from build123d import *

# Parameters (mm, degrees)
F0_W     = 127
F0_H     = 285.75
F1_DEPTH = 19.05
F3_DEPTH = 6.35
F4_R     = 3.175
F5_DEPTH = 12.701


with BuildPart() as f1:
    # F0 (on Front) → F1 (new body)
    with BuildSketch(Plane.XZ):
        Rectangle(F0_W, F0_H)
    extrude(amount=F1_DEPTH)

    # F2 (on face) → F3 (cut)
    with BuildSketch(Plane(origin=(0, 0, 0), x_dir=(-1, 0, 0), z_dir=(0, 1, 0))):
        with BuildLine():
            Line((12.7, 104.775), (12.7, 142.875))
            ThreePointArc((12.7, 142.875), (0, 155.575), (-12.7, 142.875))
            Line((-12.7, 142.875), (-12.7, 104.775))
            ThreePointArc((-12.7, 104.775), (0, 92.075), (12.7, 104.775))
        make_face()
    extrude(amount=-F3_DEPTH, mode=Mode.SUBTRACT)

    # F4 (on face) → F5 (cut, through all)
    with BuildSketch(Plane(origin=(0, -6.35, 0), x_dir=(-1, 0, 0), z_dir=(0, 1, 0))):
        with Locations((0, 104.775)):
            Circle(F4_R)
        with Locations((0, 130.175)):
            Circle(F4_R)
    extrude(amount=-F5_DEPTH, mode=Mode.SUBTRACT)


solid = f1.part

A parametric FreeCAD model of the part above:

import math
import FreeCAD as App
import Part
import Sketcher

V = App.Vector
Q = App.Units.Quantity


def add_polygon(sketch, points):
    """Adds a closed chain of lines whose ends are joined by coincident constraints."""
    first, n = sketch.GeometryCount, len(points)
    for a, b in zip(points, points[1:] + points[:1]):
        sketch.addGeometry(Part.LineSegment(App.Vector(*a, 0), App.Vector(*b, 0)), False)
    for i in range(n):
        sketch.addConstraint(Sketcher.Constraint("Coincident", first + i, 2, first + (i + 1) % n, 1))

doc = App.newDocument("Part")
body = doc.addObject("PartDesign::Body", "Body")

# Sketch on XZ plane
sketch1 = body.newObject("Sketcher::SketchObject", "Sketch")
sketch1.AttachmentSupport = (doc.getObject("XZ_Plane"), [""])
sketch1.MapMode = "FlatFace"
add_polygon(sketch1, [(-64, 143), (-64, -143), (64, -143), (64, 143)])  # lines 0-3
sketch1.addConstraint([
    Sketcher.Constraint("Vertical", 0),
    Sketcher.Constraint("Horizontal", 1),
    Sketcher.Constraint("Vertical", 2),
    Sketcher.Constraint("Horizontal", 3),
    Sketcher.Constraint("Symmetric", 0, 2, 2, 2, -1, 1),
    Sketcher.Constraint("DistanceX", 1, 1, 1, 2, Q("5 in")),
    Sketcher.Constraint("DistanceY", 0, 2, 0, 1, Q("11.25 in")),
])
pad1 = body.newObject("PartDesign::Pad", "Pad")
pad1.Profile = sketch1
pad1.Length = Q("0.75 in")

# Sketch on XZ plane
sketch2 = body.newObject("Sketcher::SketchObject", "Sketch001")
sketch2.AttachmentSupport = (doc.getObject("XZ_Plane"), [""])
sketch2.MapMode = "FlatFace"
sketch2.addGeometry([
    Part.LineSegment(V(-13, 105, 0), V(-13, 143, 0)),
    Part.ArcOfCircle(Part.Circle(V(0, 143, 0), V(0, 0, 1), 13), math.radians(0), math.radians(180)),
    Part.LineSegment(V(13, 143, 0), V(13, 105, 0)),
    Part.ArcOfCircle(Part.Circle(V(0, 105, 0), V(0, 0, 1), 13), math.radians(180), math.radians(360)),
], False)
sketch2.addConstraint([
    Sketcher.Constraint("Tangent", 0, 2, 1, 2),
    Sketcher.Constraint("Tangent", 1, 1, 2, 1),
    Sketcher.Constraint("Tangent", 2, 2, 3, 2),
    Sketcher.Constraint("Tangent", 3, 1, 0, 1),
    Sketcher.Constraint("Vertical", 0),
    Sketcher.Constraint("Vertical", 2),
    Sketcher.Constraint("PointOnObject", 1, 3, -2),
    Sketcher.Constraint("Radius", 1, Q("0.5 in")),
    Sketcher.Constraint("DistanceY", 0, 1, 0, 2, Q("1.5 in")),
    Sketcher.Constraint("DistanceY", -1, 1, 1, 3, Q("5.625 in")),
])
pocket1 = body.newObject("PartDesign::Pocket", "Pocket")
pocket1.Profile = sketch2
pocket1.Length = Q("0.25 in")
pocket1.Reversed = True

# Sketch on XZ plane
sketch3 = body.newObject("Sketcher::SketchObject", "Sketch002")
sketch3.AttachmentSupport = (doc.getObject("XZ_Plane"), [""])
sketch3.MapMode = "FlatFace"
sketch3.AttachmentOffset = App.Placement(V(0, 0, 0.25 * 25.4), App.Rotation())
sketch3.addGeometry([
    Part.Circle(V(0, 104.8, 0), V(0, 0, 1), 3.2),
    Part.Circle(V(0, 130.2, 0), V(0, 0, 1), 3.2),
], False)
sketch3.addConstraint([
    Sketcher.Constraint("Equal", 0, 1),
    Sketcher.Constraint("PointOnObject", 0, 3, -2),
    Sketcher.Constraint("PointOnObject", 1, 3, -2),
    Sketcher.Constraint("Diameter", 0, Q("0.25 in")),
    Sketcher.Constraint("DistanceY", 0, 3, 1, 3, Q("1 in")),
    Sketcher.Constraint("DistanceY", -1, 1, 0, 3, Q("4.125 in")),
])
pocket2 = body.newObject("PartDesign::Pocket", "Pocket001")
pocket2.Profile = sketch3
pocket2.Type = "ThroughAll"
pocket2.Reversed = True

doc.recompute()
